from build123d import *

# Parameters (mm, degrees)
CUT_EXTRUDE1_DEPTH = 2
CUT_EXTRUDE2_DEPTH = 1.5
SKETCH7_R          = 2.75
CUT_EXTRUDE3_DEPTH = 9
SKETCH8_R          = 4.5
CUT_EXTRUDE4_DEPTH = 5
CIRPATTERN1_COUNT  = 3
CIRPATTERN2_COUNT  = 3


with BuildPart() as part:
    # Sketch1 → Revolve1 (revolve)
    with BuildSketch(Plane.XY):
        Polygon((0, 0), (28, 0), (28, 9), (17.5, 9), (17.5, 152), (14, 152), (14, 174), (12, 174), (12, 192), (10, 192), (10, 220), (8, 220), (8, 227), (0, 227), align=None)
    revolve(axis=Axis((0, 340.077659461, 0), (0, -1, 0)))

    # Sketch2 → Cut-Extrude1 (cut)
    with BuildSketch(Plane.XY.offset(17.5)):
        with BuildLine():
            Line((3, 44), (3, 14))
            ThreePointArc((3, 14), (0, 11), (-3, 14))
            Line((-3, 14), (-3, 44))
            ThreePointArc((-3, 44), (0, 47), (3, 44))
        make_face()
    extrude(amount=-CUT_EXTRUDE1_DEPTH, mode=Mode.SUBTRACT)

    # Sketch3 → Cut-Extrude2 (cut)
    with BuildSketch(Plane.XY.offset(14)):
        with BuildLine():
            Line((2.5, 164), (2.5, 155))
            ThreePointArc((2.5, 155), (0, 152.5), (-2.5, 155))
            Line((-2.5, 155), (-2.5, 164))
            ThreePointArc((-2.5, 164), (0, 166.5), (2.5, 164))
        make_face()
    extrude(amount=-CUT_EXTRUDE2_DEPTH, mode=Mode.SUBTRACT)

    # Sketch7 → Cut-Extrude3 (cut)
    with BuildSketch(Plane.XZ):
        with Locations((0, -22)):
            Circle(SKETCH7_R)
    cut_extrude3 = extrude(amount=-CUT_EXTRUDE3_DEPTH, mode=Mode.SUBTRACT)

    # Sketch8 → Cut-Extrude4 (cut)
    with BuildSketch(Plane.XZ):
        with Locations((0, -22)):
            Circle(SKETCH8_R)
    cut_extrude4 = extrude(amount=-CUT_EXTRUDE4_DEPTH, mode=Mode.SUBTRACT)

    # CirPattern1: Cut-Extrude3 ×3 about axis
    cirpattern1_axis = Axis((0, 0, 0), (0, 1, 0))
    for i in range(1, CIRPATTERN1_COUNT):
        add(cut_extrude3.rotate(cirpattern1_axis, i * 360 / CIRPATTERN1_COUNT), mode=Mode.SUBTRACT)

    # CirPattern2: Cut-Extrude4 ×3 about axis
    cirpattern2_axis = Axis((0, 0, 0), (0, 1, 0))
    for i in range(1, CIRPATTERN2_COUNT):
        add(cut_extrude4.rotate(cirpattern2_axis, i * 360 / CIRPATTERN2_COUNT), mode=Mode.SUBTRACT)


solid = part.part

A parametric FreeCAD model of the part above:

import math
import FreeCAD as App
import Part
import Sketcher
Q = App.Units.Quantity

doc = App.newDocument("Part")
params = doc.addObject("Spreadsheet::Sheet", "Params")
for row, (alias, value) in enumerate([
    ("sketch1_width", "28 mm"),
    ("sketch1_width2", "2 mm"),
    ("sketch1_width3", "8 mm"),
    ("sketch1_height", "9 mm"),
    ("sketch1_height2", "143 mm"),
    ("revolution_angle", "360 deg"),
    ("sketch2_radius", "3 mm"),
    ("sketch2_height", "30 mm"),
    ("pocket1_length", "2 mm"),
    ("sketch3_radius", "2.5 mm"),
    ("sketch3_height", "9 mm"),
    ("pocket2_length", "1.5 mm"),
    ("sketch4_diameter", "5.5 mm"),
    ("pocket3_length", "9 mm"),
    ("sketch5_diameter", "9 mm"),
    ("pocket4_length", "5 mm"),
], start=1):
    params.set(f"A{row}", alias)
    params.set(f"B{row}", "=" + value)
    params.setAlias(f"B{row}", alias)

body = doc.addObject("PartDesign::Body", "Body")

sketch1 = doc.addObject("Sketcher::SketchObject", "Sketch")
body.addObject(sketch1)
sketch1.AttachmentSupport = (doc.XY_Plane, [""])
sketch1.MapMode = "FlatFace"
sketch1.addGeometry(Part.LineSegment(App.Vector(0, 0, 0), App.Vector(28, 0, 0)), False)
sketch1.addGeometry(Part.LineSegment(App.Vector(28, 0, 0), App.Vector(28, 9, 0)), False)
sketch1.addGeometry(Part.LineSegment(App.Vector(28, 9, 0), App.Vector(17.5, 9, 0)), False)
sketch1.addGeometry(Part.LineSegment(App.Vector(17.5, 9, 0), App.Vector(17.5, 152, 0)), False)
sketch1.addGeometry(Part.LineSegment(App.Vector(17.5, 152, 0), App.Vector(14, 152, 0)), False)
sketch1.addGeometry(Part.LineSegment(App.Vector(14, 152, 0), App.Vector(14, 174, 0)), False)
sketch1.addGeometry(Part.LineSegment(App.Vector(14, 174, 0), App.Vector(12, 174, 0)), False)
sketch1.addGeometry(Part.LineSegment(App.Vector(12, 174, 0), App.Vector(12, 192, 0)), False)
sketch1.addGeometry(Part.LineSegment(App.Vector(12, 192, 0), App.Vector(10, 192, 0)), False)
sketch1.addGeometry(Part.LineSegment(App.Vector(10, 192, 0), App.Vector(10, 220, 0)), False)
sketch1.addGeometry(Part.LineSegment(App.Vector(10, 220, 0), App.Vector(8, 220, 0)), False)
sketch1.addGeometry(Part.LineSegment(App.Vector(8, 220, 0), App.Vector(8, 227, 0)), False)
sketch1.addGeometry(Part.LineSegment(App.Vector(8, 227, 0), App.Vector(0, 227, 0)), False)
sketch1.addGeometry(Part.LineSegment(App.Vector(0, 227, 0), App.Vector(0, 0, 0)), False)
sketch1.addConstraint(Sketcher.Constraint("Coincident", 0, 2, 1, 1))
sketch1.addConstraint(Sketcher.Constraint("Coincident", 1, 2, 2, 1))
sketch1.addConstraint(Sketcher.Constraint("Coincident", 2, 2, 3, 1))
sketch1.addConstraint(Sketcher.Constraint("Coincident", 3, 2, 4, 1))
sketch1.addConstraint(Sketcher.Constraint("Coincident", 4, 2, 5, 1))
sketch1.addConstraint(Sketcher.Constraint("Coincident", 5, 2, 6, 1))
sketch1.addConstraint(Sketcher.Constraint("Coincident", 6, 2, 7, 1))
sketch1.addConstraint(Sketcher.Constraint("Coincident", 7, 2, 8, 1))
sketch1.addConstraint(Sketcher.Constraint("Coincident", 8, 2, 9, 1))
sketch1.addConstraint(Sketcher.Constraint("Coincident", 9, 2, 10, 1))
sketch1.addConstraint(Sketcher.Constraint("Coincident", 10, 2, 11, 1))
sketch1.addConstraint(Sketcher.Constraint("Coincident", 11, 2, 12, 1))
sketch1.addConstraint(Sketcher.Constraint("Coincident", 12, 2, 13, 1))
sketch1.addConstraint(Sketcher.Constraint("Coincident", 13, 2, 0, 1))
sketch1.addConstraint(Sketcher.Constraint("Horizontal", 0))
sketch1.addConstraint(Sketcher.Constraint("Vertical", 1))
sketch1.addConstraint(Sketcher.Constraint("Horizontal", 2))
sketch1.addConstraint(Sketcher.Constraint("Vertical", 3))
sketch1.addConstraint(Sketcher.Constraint("Horizontal", 4))
sketch1.addConstraint(Sketcher.Constraint("Vertical", 5))
sketch1.addConstraint(Sketcher.Constraint("Horizontal", 6))
sketch1.addConstraint(Sketcher.Constraint("Vertical", 7))
sketch1.addConstraint(Sketcher.Constraint("Horizontal", 8))
sketch1.addConstraint(Sketcher.Constraint("Vertical", 9))
sketch1.addConstraint(Sketcher.Constraint("Horizontal", 10))
sketch1.addConstraint(Sketcher.Constraint("Vertical", 11))
sketch1.addConstraint(Sketcher.Constraint("Horizontal", 12))
sketch1.addConstraint(Sketcher.Constraint("Vertical", 13))
sketch1.addConstraint(Sketcher.Constraint("Coincident", 13, 2, -1, 1))
sketch1.addConstraint(Sketcher.Constraint("Equal", 6, 8))
sketch1.addConstraint(Sketcher.Constraint("Equal", 8, 10))
sketch1.addConstraint(Sketcher.Constraint("Equal", 0, 9))
sketch1.addConstraint(Sketcher.Constraint("DistanceX", 0, 1, 0, 2, Q("28 mm")))
sketch1.addConstraint(Sketcher.Constraint("DistanceX", 6, 2, 6, 1, Q("2 mm")))
sketch1.addConstraint(Sketcher.Constraint("DistanceX", 12, 2, 12, 1, Q("8 mm")))
sketch1.addConstraint(Sketcher.Constraint("DistanceY", 1, 1, 1, 2, Q("9 mm")))
sketch1.addConstraint(Sketcher.Constraint("DistanceY", 3, 1, 3, 2, Q("143 mm")))
sketch1.addConstraint(Sketcher.Constraint("DistanceY", 5, 1, 5, 2, Q("22 mm")))
sketch1.addConstraint(Sketcher.Constraint("DistanceY", 7, 1, 7, 2, Q("18 mm")))
sketch1.addConstraint(Sketcher.Constraint("DistanceY", 11, 1, 11, 2, Q("7 mm")))
sketch1.addConstraint(Sketcher.Constraint("DistanceX", 2, 2, 2, 1, Q("10.5 mm")))
sketch1.setExpression("Constraints[32]", "Params.sketch1_width")
sketch1.setExpression("Constraints[33]", "Params.sketch1_width2")
sketch1.setExpression("Constraints[34]", "Params.sketch1_width3")
sketch1.setExpression("Constraints[35]", "Params.sketch1_height")
sketch1.setExpression("Constraints[36]", "Params.sketch1_height2")
revolution = doc.addObject("PartDesign::Revolution", "Revolution")
body.addObject(revolution)
revolution.Profile = sketch1
revolution.ReferenceAxis = (sketch1, ["V_Axis"])
revolution.setExpression("Angle", "Params.revolution_angle")

sketch2 = doc.addObject("Sketcher::SketchObject", "Sketch001")
body.addObject(sketch2)
sketch2.AttachmentSupport = (doc.XY_Plane, [""])
sketch2.MapMode = "FlatFace"
sketch2.AttachmentOffset = App.Placement(App.Vector(0, 0, 17.5), App.Rotation())
sketch2.addGeometry(Part.LineSegment(App.Vector(3, 14, 0), App.Vector(3, 44, 0)), False)
sketch2.addGeometry(Part.ArcOfCircle(Part.Circle(App.Vector(0, 44, 0), App.Vector(0, 0, 1), 3), math.radians(0), math.radians(180)), False)
sketch2.addGeometry(Part.LineSegment(App.Vector(-3, 44, 0), App.Vector(-3, 14, 0)), False)
sketch2.addGeometry(Part.ArcOfCircle(Part.Circle(App.Vector(0, 14, 0), App.Vector(0, 0, 1), 3), math.radians(180), math.radians(360)), False)
sketch2.addConstraint(Sketcher.Constraint("Tangent", 0, 2, 1, 1))
sketch2.addConstraint(Sketcher.Constraint("Tangent", 1, 2, 2, 1))
sketch2.addConstraint(Sketcher.Constraint("Tangent", 2, 2, 3, 1))
sketch2.addConstraint(Sketcher.Constraint("Tangent", 3, 2, 0, 1))
sketch2.addConstraint(Sketcher.Constraint("Vertical", 0))
sketch2.addConstraint(Sketcher.Constraint("Vertical", 2))
sketch2.addConstraint(Sketcher.Constraint("PointOnObject", 1, 3, -2))
sketch2.addConstraint(Sketcher.Constraint("Radius", 1, Q("3 mm")))
sketch2.addConstraint(Sketcher.Constraint("DistanceY", 0, 1, 0, 2, Q("30 mm")))
sketch2.addConstraint(Sketcher.Constraint("DistanceY", -1, 1, 1, 3, Q("44 mm")))
sketch2.setExpression("Constraints[7]", "Params.sketch2_radius")
sketch2.setExpression("Constraints[8]", "Params.sketch2_height")
pocket1 = doc.addObject("PartDesign::Pocket", "Pocket")
body.addObject(pocket1)
pocket1.Profile = sketch2
pocket1.setExpression("Length", "Params.pocket1_length")

sketch3 = doc.addObject("Sketcher::SketchObject", "Sketch002")
body.addObject(sketch3)
sketch3.AttachmentSupport = (doc.XY_Plane, [""])
sketch3.MapMode = "FlatFace"
sketch3.AttachmentOffset = App.Placement(App.Vector(0, 0, 14), App.Rotation())
sketch3.addGeometry(Part.LineSegment(App.Vector(2.5, 155, 0), App.Vector(2.5, 164, 0)), False)
sketch3.addGeometry(Part.ArcOfCircle(Part.Circle(App.Vector(0, 164, 0), App.Vector(0, 0, 1), 2.5), math.radians(0), math.radians(180)), False)
sketch3.addGeometry(Part.LineSegment(App.Vector(-2.5, 164, 0), App.Vector(-2.5, 155, 0)), False)
sketch3.addGeometry(Part.ArcOfCircle(Part.Circle(App.Vector(0, 155, 0), App.Vector(0, 0, 1), 2.5), math.radians(180), math.radians(360)), False)
sketch3.addConstraint(Sketcher.Constraint("Tangent", 0, 2, 1, 1))
sketch3.addConstraint(Sketcher.Constraint("Tangent", 1, 2, 2, 1))
sketch3.addConstraint(Sketcher.Constraint("Tangent", 2, 2, 3, 1))
sketch3.addConstraint(Sketcher.Constraint("Tangent", 3, 2, 0, 1))
sketch3.addConstraint(Sketcher.Constraint("Vertical", 0))
sketch3.addConstraint(Sketcher.Constraint("Vertical", 2))
sketch3.addConstraint(Sketcher.Constraint("PointOnObject", 1, 3, -2))
sketch3.addConstraint(Sketcher.Constraint("Radius", 1, Q("2.5 mm")))
sketch3.addConstraint(Sketcher.Constraint("DistanceY", 0, 1, 0, 2, Q("9 mm")))
sketch3.addConstraint(Sketcher.Constraint("DistanceY", -1, 1, 1, 3, Q("164 mm")))
sketch3.setExpression("Constraints[7]", "Params.sketch3_radius")
sketch3.setExpression("Constraints[8]", "Params.sketch3_height")
pocket2 = doc.addObject("PartDesign::Pocket", "Pocket001")
body.addObject(pocket2)
pocket2.Profile = sketch3
pocket2.setExpression("Length", "Params.pocket2_length")

sketch4 = doc.addObject("Sketcher::SketchObject", "Sketch003")
body.addObject(sketch4)
sketch4.AttachmentSupport = (doc.XZ_Plane, [""])
sketch4.MapMode = "FlatFace"
sketch4.addGeometry(Part.Circle(App.Vector(0, -22, 0), App.Vector(0, 0, 1), 2.8), False)
sketch4.addConstraint(Sketcher.Constraint("PointOnObject", 0, 3, -2))
sketch4.addConstraint(Sketcher.Constraint("Diameter", 0, Q("5.5 mm")))
sketch4.addConstraint(Sketcher.Constraint("DistanceY", 0, 3, -1, 1, Q("22 mm")))
sketch4.setExpression("Constraints[1]", "Params.sketch4_diameter")
pocket3 = doc.addObject("PartDesign::Pocket", "Pocket002")
body.addObject(pocket3)
pocket3.Profile = sketch4
pocket3.setExpression("Length", "Params.pocket3_length")

sketch5 = doc.addObject("Sketcher::SketchObject", "Sketch004")
body.addObject(sketch5)
sketch5.AttachmentSupport = (doc.XZ_Plane, [""])
sketch5.MapMode = "FlatFace"
sketch5.addGeometry(Part.Circle(App.Vector(0, -22, 0), App.Vector(0, 0, 1), 4.5), False)
sketch5.addConstraint(Sketcher.Constraint("PointOnObject", 0, 3, -2))
sketch5.addConstraint(Sketcher.Constraint("Diameter", 0, Q("9 mm")))
sketch5.addConstraint(Sketcher.Constraint("DistanceY", 0, 3, -1, 1, Q("22 mm")))
sketch5.setExpression("Constraints[1]", "Params.sketch5_diameter")
pocket4 = doc.addObject("PartDesign::Pocket", "Pocket003")
body.addObject(pocket4)
pocket4.Profile = sketch5
pocket4.setExpression("Length", "Params.pocket4_length")
doc.recompute()

polarpattern = doc.addObject("PartDesign::PolarPattern", "PolarPattern")
body.addObject(polarpattern)
polarpattern.Originals = [pocket3]
polarpattern.Axis = (doc.Y_Axis, [""])
polarpattern.Angle = 360
polarpattern.Occurrences = 3
body.Tip = polarpattern
doc.recompute()

polarpattern2 = doc.addObject("PartDesign::PolarPattern", "PolarPattern001")
body.addObject(polarpattern2)
polarpattern2.Originals = [pocket4]
polarpattern2.Axis = (doc.Y_Axis, [""])
polarpattern2.Angle = 360
polarpattern2.Occurrences = 3
body.Tip = polarpattern2

doc.recompute()
